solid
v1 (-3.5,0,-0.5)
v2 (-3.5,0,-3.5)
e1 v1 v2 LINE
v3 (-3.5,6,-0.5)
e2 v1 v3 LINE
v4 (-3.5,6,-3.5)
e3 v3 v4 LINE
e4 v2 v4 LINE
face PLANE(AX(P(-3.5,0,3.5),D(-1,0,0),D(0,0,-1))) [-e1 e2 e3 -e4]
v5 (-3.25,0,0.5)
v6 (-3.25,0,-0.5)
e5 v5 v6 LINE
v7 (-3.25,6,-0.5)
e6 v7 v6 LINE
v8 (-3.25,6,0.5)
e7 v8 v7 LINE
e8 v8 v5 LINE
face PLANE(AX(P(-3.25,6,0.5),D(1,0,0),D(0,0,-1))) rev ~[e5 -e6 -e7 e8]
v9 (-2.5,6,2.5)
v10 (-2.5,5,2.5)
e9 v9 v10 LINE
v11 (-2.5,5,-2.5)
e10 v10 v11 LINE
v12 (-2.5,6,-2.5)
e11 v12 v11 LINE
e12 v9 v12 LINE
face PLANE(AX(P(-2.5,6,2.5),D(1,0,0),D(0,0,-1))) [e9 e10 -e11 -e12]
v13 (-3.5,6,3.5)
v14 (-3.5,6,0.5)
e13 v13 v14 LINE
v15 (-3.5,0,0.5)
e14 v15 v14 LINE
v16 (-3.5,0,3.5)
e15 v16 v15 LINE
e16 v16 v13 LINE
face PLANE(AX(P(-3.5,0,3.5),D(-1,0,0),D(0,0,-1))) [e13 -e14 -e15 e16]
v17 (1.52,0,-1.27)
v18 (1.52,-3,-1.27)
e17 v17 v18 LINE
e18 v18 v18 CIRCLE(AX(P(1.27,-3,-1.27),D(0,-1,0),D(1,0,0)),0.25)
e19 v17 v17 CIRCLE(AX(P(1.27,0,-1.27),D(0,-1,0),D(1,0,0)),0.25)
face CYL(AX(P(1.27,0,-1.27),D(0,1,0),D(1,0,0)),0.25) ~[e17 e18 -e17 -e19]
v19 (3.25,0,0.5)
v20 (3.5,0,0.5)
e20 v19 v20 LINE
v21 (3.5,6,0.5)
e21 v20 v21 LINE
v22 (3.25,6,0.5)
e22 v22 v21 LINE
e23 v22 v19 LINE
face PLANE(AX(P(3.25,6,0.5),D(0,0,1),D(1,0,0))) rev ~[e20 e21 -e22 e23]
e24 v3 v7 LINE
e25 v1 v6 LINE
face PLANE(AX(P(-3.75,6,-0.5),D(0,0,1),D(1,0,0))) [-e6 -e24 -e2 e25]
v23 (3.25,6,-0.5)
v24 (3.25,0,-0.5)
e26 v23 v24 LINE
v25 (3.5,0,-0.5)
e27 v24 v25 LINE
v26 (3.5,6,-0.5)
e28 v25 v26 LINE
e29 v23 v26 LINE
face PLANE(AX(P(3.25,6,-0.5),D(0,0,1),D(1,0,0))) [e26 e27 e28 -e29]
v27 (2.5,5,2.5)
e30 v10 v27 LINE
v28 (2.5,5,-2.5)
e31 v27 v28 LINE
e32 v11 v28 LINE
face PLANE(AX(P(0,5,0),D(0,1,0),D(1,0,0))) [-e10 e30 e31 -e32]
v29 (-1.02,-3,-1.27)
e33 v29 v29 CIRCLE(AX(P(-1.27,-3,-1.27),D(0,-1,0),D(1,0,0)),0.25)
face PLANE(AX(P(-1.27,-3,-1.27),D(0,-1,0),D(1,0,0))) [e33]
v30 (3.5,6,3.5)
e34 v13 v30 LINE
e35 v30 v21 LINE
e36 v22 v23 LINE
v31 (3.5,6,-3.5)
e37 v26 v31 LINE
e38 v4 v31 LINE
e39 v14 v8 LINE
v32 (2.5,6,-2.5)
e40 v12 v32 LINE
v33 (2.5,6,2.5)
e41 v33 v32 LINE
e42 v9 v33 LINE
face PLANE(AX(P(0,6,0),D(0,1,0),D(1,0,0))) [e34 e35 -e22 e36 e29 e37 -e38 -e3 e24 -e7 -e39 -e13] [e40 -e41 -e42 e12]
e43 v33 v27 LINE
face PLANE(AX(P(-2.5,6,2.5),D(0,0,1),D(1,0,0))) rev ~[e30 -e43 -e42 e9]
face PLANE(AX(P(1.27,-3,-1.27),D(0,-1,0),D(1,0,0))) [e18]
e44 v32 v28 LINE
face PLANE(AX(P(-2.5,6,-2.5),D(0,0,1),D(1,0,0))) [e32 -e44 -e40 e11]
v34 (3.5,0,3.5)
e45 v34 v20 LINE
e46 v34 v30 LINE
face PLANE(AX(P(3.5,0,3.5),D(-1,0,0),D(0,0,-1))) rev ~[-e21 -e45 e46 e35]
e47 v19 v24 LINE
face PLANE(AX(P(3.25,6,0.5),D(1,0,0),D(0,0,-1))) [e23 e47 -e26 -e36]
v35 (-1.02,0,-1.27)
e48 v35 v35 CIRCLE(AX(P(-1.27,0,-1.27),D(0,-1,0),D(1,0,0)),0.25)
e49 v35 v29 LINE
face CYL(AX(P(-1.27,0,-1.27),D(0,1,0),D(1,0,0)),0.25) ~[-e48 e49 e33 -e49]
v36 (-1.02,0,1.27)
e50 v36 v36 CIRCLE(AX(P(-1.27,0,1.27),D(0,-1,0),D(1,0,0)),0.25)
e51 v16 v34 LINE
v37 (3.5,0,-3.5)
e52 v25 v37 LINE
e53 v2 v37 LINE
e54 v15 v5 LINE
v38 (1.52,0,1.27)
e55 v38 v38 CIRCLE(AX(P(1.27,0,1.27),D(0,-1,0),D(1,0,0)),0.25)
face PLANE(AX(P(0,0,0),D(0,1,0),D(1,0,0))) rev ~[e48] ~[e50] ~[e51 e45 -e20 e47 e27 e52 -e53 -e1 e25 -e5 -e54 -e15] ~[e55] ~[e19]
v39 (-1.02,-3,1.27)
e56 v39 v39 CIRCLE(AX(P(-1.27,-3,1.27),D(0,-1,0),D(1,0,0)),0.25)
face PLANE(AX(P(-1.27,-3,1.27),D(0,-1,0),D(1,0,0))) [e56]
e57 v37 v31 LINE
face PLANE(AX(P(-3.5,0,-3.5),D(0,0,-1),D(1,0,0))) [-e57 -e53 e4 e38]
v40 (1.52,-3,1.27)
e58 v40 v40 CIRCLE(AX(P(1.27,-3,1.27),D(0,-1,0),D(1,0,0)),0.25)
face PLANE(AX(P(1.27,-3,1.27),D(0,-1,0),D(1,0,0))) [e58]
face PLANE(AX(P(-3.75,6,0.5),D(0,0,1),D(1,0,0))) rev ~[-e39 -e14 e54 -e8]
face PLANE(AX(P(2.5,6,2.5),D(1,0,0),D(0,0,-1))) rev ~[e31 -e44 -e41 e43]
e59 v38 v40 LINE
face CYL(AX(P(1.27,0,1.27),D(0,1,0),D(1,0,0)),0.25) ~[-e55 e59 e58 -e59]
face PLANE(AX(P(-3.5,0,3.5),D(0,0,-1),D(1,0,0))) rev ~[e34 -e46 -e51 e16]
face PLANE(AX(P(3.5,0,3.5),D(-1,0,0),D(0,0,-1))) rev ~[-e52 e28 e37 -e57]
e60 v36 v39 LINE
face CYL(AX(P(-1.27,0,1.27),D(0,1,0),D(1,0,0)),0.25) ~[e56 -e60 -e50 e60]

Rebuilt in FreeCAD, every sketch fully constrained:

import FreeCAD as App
import Part
import Sketcher

V = App.Vector

doc = App.newDocument("Part")
body = doc.addObject("PartDesign::Body", "Body")

sketch1 = doc.addObject("Sketcher::SketchObject", "Sketch")
body.addObject(sketch1)
sketch1.AttachmentSupport = (doc.XZ_Plane, [""])
sketch1.MapMode = "FlatFace"
sketch1.addGeometry(Part.LineSegment(V(-3.5, -3.5, 0), V(-3.5, 3.5, 0)), False)
sketch1.addGeometry(Part.LineSegment(V(-3.5, 3.5, 0), V(3.5, 3.5, 0)), False)
sketch1.addGeometry(Part.LineSegment(V(3.5, 3.5, 0), V(3.5, -3.5, 0)), False)
sketch1.addGeometry(Part.LineSegment(V(3.5, -3.5, 0), V(-3.5, -3.5, 0)), False)
sketch1.addConstraint(Sketcher.Constraint("Coincident", 0, 2, 1, 1))
sketch1.addConstraint(Sketcher.Constraint("Coincident", 1, 2, 2, 1))
sketch1.addConstraint(Sketcher.Constraint("Coincident", 2, 2, 3, 1))
sketch1.addConstraint(Sketcher.Constraint("Coincident", 3, 2, 0, 1))
sketch1.addConstraint(Sketcher.Constraint("Vertical", 0))
sketch1.addConstraint(Sketcher.Constraint("Horizontal", 1))
sketch1.addConstraint(Sketcher.Constraint("Vertical", 2))
sketch1.addConstraint(Sketcher.Constraint("Horizontal", 3))
sketch1.addConstraint(Sketcher.Constraint("Symmetric", 0, 2, 2, 2, -1, 1))
sketch1.addConstraint(Sketcher.Constraint("Equal", 3, 0))
sketch1.addConstraint(Sketcher.Constraint("DistanceX", 1, 1, 1, 2, 7.0))
pad1 = doc.addObject("PartDesign::Pad", "Pad")
body.addObject(pad1)
pad1.Profile = sketch1
pad1.Length = 6
pad1.Reversed = True

sketch2 = doc.addObject("Sketcher::SketchObject", "Sketch001")
body.addObject(sketch2)
sketch2.AttachmentSupport = (doc.XZ_Plane, [""])
sketch2.MapMode = "FlatFace"
sketch2.addGeometry(Part.Circle(V(-1.27, 1.27, 0), V(0, 0, 1), 0.25), False)
sketch2.addGeometry(Part.Circle(V(1.27, 1.27, 0), V(0, 0, 1), 0.25), False)
sketch2.addGeometry(Part.Circle(V(1.27, -1.27, 0), V(0, 0, 1), 0.25), False)
sketch2.addGeometry(Part.Circle(V(-1.27, -1.27, 0), V(0, 0, 1), 0.25), False)
sketch2.addConstraint(Sketcher.Constraint("Equal", 0, 1))
sketch2.addConstraint(Sketcher.Constraint("Equal", 1, 2))
sketch2.addConstraint(Sketcher.Constraint("Equal", 2, 3))
sketch2.addConstraint(Sketcher.Constraint("Symmetric", 0, 3, 2, 3, -1, 1))
sketch2.addConstraint(Sketcher.Constraint("Symmetric", 1, 3, 3, 3, -1, 1))
sketch2.addConstraint(Sketcher.Constraint("Symmetric", 0, 3, 1, 3, -2))
sketch2.addConstraint(Sketcher.Constraint("Diameter", 0, 0.5))
sketch2.addConstraint(Sketcher.Constraint("DistanceX", 0, 3, -1, 1, 1.27))
sketch2.addConstraint(Sketcher.Constraint("DistanceY", -1, 1, 0, 3, 1.27))
pad2 = doc.addObject("PartDesign::Pad", "Pad001")
body.addObject(pad2)
pad2.Profile = sketch2
pad2.Length = 3

sketch3 = doc.addObject("Sketcher::SketchObject", "Sketch002")
body.addObject(sketch3)
sketch3.AttachmentSupport = (doc.XZ_Plane, [""])
sketch3.MapMode = "FlatFace"
sketch3.AttachmentOffset = App.Placement(V(0, 0, -6), App.Rotation())
sketch3.addGeometry(Part.LineSegment(V(-2.5, -2.5, 0), V(-2.5, 2.5, 0)), False)
sketch3.addGeometry(Part.LineSegment(V(-2.5, 2.5, 0), V(2.5, 2.5, 0)), False)
sketch3.addGeometry(Part.LineSegment(V(2.5, 2.5, 0), V(2.5, -2.5, 0)), False)
sketch3.addGeometry(Part.LineSegment(V(2.5, -2.5, 0), V(-2.5, -2.5, 0)), False)
sketch3.addConstraint(Sketcher.Constraint("Coincident", 0, 2, 1, 1))
sketch3.addConstraint(Sketcher.Constraint("Coincident", 1, 2, 2, 1))
sketch3.addConstraint(Sketcher.Constraint("Coincident", 2, 2, 3, 1))
sketch3.addConstraint(Sketcher.Constraint("Coincident", 3, 2, 0, 1))
sketch3.addConstraint(Sketcher.Constraint("Vertical", 0))
sketch3.addConstraint(Sketcher.Constraint("Horizontal", 1))
sketch3.addConstraint(Sketcher.Constraint("Vertical", 2))
sketch3.addConstraint(Sketcher.Constraint("Horizontal", 3))
sketch3.addConstraint(Sketcher.Constraint("Symmetric", 0, 2, 2, 2, -1, 1))
sketch3.addConstraint(Sketcher.Constraint("Equal", 3, 0))
sketch3.addConstraint(Sketcher.Constraint("DistanceX", 1, 1, 1, 2, 5.0))
pocket1 = doc.addObject("PartDesign::Pocket", "Pocket")
body.addObject(pocket1)
pocket1.Profile = sketch3
pocket1.Length = 1
pocket1.Reversed = True

sketch4 = doc.addObject("Sketcher::SketchObject", "Sketch003")
body.addObject(sketch4)
sketch4.AttachmentSupport = (doc.XZ_Plane, [""])
sketch4.MapMode = "FlatFace"
sketch4.AttachmentOffset = App.Placement(V(0, 0, -6), App.Rotation())
sketch4.addGeometry(Part.LineSegment(V(3.25, -0.5, 0), V(3.25, 0.5, 0)), False)
sketch4.addGeometry(Part.LineSegment(V(3.25, 0.5, 0), V(3.75, 0.5, 0)), False)
sketch4.addGeometry(Part.LineSegment(V(3.75, 0.5, 0), V(3.75, -0.5, 0)), False)
sketch4.addGeometry(Part.LineSegment(V(3.75, -0.5, 0), V(3.25, -0.5, 0)), False)
sketch4.addGeometry(Part.LineSegment(V(-3.75, -0.5, 0), V(-3.75, 0.5, 0)), False)
sketch4.addGeometry(Part.LineSegment(V(-3.75, 0.5, 0), V(-3.25, 0.5, 0)), False)
sketch4.addGeometry(Part.LineSegment(V(-3.25, 0.5, 0), V(-3.25, -0.5, 0)), False)
sketch4.addGeometry(Part.LineSegment(V(-3.25, -0.5, 0), V(-3.75, -0.5, 0)), False)
sketch4.addConstraint(Sketcher.Constraint("Coincident", 0, 2, 1, 1))
sketch4.addConstraint(Sketcher.Constraint("Coincident", 1, 2, 2, 1))
sketch4.addConstraint(Sketcher.Constraint("Coincident", 2, 2, 3, 1))
sketch4.addConstraint(Sketcher.Constraint("Coincident", 3, 2, 0, 1))
sketch4.addConstraint(Sketcher.Constraint("Coincident", 4, 2, 5, 1))
sketch4.addConstraint(Sketcher.Constraint("Coincident", 5, 2, 6, 1))
sketch4.addConstraint(Sketcher.Constraint("Coincident", 6, 2, 7, 1))
sketch4.addConstraint(Sketcher.Constraint("Coincident", 7, 2, 4, 1))
sketch4.addConstraint(Sketcher.Constraint("Vertical", 0))
sketch4.addConstraint(Sketcher.Constraint("Horizontal", 1))
sketch4.addConstraint(Sketcher.Constraint("Vertical", 2))
sketch4.addConstraint(Sketcher.Constraint("Horizontal", 3))
sketch4.addConstraint(Sketcher.Constraint("Vertical", 4))
sketch4.addConstraint(Sketcher.Constraint("Horizontal", 5))
sketch4.addConstraint(Sketcher.Constraint("Vertical", 6))
sketch4.addConstraint(Sketcher.Constraint("Horizontal", 7))
sketch4.addConstraint(Sketcher.Constraint("Symmetric", 2, 2, 4, 2, -1, 1))
sketch4.addConstraint(Sketcher.Constraint("Symmetric", 0, 2, 6, 2, -1, 1))
sketch4.addConstraint(Sketcher.Constraint("Horizontal", 1, 2, 4, 2))
sketch4.addConstraint(Sketcher.Constraint("DistanceY", 0, 1, 0, 2, 1.0))
sketch4.addConstraint(Sketcher.Constraint("DistanceX", 1, 1, 1, 2, 0.5))
sketch4.addConstraint(Sketcher.Constraint("DistanceX", 4, 2, 0, 2, 7.0))
pocket2 = doc.addObject("PartDesign::Pocket", "Pocket001")
body.addObject(pocket2)
pocket2.Profile = sketch4
pocket2.Type = "ThroughAll"
pocket2.Reversed = True

doc.recompute()
